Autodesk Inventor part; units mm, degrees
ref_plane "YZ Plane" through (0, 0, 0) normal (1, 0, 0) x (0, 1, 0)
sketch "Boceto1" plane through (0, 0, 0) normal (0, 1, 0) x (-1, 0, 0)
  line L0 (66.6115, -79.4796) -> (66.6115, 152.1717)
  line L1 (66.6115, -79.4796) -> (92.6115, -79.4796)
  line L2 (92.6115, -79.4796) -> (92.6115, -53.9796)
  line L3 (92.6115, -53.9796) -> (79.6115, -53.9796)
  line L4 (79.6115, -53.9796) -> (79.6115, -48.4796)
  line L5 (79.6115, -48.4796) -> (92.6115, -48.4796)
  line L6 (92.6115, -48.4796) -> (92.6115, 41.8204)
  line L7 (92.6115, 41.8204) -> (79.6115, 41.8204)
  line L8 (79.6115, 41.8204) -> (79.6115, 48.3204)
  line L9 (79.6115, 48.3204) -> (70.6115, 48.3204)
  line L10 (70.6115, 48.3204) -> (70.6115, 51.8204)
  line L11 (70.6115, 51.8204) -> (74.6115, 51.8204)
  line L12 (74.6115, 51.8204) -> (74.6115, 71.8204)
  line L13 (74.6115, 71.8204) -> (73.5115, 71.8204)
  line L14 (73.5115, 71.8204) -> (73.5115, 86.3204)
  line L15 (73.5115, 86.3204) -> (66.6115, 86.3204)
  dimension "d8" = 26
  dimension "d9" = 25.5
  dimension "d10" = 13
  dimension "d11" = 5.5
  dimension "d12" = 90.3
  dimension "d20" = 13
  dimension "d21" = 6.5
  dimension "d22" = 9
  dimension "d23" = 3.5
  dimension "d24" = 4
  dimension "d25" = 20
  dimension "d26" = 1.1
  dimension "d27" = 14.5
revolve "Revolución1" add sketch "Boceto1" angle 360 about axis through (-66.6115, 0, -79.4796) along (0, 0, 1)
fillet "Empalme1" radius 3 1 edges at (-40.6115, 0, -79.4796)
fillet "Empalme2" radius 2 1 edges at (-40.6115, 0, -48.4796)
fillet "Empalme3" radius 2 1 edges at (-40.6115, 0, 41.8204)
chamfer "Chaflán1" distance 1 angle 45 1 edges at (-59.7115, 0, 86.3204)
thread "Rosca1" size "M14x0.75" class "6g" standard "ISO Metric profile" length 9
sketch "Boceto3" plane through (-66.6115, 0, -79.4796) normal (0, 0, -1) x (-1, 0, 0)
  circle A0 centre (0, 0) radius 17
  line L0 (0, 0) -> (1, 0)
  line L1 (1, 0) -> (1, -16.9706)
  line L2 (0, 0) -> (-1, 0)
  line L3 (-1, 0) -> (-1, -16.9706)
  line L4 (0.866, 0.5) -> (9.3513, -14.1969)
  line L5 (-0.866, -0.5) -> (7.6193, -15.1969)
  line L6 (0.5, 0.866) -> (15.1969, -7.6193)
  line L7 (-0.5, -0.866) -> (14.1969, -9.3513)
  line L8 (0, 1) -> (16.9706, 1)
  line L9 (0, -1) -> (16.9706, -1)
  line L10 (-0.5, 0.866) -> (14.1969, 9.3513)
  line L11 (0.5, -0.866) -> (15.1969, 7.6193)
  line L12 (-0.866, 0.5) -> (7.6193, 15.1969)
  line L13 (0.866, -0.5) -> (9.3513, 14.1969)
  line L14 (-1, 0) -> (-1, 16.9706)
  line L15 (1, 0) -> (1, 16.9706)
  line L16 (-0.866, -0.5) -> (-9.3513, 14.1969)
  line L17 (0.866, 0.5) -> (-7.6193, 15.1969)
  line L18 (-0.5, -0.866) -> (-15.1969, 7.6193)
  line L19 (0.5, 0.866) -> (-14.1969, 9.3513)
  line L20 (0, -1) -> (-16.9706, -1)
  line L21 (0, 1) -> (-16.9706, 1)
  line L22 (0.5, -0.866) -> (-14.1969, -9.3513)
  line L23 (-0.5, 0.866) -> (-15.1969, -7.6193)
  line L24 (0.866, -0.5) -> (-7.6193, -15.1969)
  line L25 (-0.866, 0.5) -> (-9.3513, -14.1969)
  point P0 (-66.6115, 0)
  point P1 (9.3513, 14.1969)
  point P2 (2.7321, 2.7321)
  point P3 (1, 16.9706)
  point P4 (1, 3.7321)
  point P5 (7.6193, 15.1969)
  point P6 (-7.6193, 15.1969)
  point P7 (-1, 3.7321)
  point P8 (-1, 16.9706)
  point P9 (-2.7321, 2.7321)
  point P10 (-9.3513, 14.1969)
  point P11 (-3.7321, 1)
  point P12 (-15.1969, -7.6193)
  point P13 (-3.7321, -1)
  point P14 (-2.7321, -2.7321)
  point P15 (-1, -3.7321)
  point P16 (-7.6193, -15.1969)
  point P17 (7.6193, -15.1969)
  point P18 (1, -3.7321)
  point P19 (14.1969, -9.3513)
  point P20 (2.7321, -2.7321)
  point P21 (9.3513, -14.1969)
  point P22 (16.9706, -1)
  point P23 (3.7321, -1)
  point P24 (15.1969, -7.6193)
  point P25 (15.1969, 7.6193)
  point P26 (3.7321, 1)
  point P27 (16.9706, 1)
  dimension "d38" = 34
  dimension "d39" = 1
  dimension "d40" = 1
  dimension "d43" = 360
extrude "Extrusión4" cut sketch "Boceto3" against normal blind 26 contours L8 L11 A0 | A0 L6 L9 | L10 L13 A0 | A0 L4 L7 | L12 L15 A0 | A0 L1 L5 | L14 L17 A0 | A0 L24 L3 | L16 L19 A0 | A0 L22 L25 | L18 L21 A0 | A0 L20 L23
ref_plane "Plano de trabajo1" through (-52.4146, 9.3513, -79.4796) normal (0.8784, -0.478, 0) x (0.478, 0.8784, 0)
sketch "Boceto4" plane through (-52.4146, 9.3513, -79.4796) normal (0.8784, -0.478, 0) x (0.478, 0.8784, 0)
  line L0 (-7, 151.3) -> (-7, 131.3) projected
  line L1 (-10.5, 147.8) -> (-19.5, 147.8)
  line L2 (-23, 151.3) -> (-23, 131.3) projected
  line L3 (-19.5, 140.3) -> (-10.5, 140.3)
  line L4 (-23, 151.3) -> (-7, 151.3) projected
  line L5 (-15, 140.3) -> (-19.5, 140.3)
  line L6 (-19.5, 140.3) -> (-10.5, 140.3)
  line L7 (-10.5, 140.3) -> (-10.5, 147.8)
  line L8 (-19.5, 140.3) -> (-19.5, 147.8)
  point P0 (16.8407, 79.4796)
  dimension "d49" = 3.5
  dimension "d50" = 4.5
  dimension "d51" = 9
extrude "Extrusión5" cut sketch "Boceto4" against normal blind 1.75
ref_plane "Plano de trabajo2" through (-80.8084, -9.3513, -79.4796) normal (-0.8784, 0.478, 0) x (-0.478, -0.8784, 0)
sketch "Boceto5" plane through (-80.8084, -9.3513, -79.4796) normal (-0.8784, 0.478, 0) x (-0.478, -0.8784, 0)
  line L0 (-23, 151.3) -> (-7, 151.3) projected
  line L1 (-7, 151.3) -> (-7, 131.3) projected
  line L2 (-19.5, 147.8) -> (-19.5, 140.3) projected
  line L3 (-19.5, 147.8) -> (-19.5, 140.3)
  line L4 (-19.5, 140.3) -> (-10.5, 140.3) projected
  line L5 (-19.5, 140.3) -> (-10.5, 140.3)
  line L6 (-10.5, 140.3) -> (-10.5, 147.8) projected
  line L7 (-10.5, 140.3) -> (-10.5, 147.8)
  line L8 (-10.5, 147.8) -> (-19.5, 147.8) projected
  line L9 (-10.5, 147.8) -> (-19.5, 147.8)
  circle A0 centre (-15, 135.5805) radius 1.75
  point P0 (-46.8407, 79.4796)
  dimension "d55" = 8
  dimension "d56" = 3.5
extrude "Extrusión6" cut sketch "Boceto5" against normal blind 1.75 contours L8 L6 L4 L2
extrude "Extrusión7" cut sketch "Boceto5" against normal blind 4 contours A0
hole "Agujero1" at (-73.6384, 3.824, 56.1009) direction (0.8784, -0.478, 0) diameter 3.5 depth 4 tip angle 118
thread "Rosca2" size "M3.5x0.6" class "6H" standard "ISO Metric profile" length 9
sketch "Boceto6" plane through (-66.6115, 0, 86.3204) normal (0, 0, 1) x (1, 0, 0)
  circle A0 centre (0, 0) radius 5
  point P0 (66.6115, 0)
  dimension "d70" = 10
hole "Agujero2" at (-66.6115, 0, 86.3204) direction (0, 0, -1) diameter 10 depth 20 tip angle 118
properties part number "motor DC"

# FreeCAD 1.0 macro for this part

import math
import FreeCAD as App
import Part
import Sketcher

V = App.Vector
Q = App.Units.Quantity


def edges_at(feature, points):
    """Names of the edges that pass closest to the given points."""
    edges = feature.Shape.Edges
    near = lambda p: min(range(len(edges)), key=lambda i: edges[i].distToShape(Part.Vertex(*p))[0])
    return sorted({f"Edge{near(p) + 1}" for p in points})

doc = App.newDocument("Part")
body = doc.addObject("PartDesign::Body", "Body")

sketch1 = body.newObject("Sketcher::SketchObject", "Sketch")
sketch1.AttachmentSupport = (doc.getObject("XZ_Plane"), [""])
sketch1.MapMode = "FlatFace"
sketch1.addGeometry(Part.LineSegment(V(-66.6115, 86.3204, 0), V(-66.6115, -79.4796, 0)), False)
sketch1.addGeometry(Part.LineSegment(V(-66.6115, -79.4796, 0), V(-92.6115, -79.4796, 0)), False)
sketch1.addGeometry(Part.LineSegment(V(-92.6115, -79.4796, 0), V(-92.6115, -53.9796, 0)), False)
sketch1.addGeometry(Part.LineSegment(V(-92.6115, -53.9796, 0), V(-79.6115, -53.9796, 0)), False)
sketch1.addGeometry(Part.LineSegment(V(-79.6115, -53.9796, 0), V(-79.6115, -48.4796, 0)), False)
sketch1.addGeometry(Part.LineSegment(V(-79.6115, -48.4796, 0), V(-92.6115, -48.4796, 0)), False)
sketch1.addGeometry(Part.LineSegment(V(-92.6115, -48.4796, 0), V(-92.6115, 41.8204, 0)), False)
sketch1.addGeometry(Part.LineSegment(V(-92.6115, 41.8204, 0), V(-79.6115, 41.8204, 0)), False)
sketch1.addGeometry(Part.LineSegment(V(-79.6115, 41.8204, 0), V(-79.6115, 48.3204, 0)), False)
sketch1.addGeometry(Part.LineSegment(V(-79.6115, 48.3204, 0), V(-70.6115, 48.3204, 0)), False)
sketch1.addGeometry(Part.LineSegment(V(-70.6115, 48.3204, 0), V(-70.6115, 51.8204, 0)), False)
sketch1.addGeometry(Part.LineSegment(V(-70.6115, 51.8204, 0), V(-74.6115, 51.8204, 0)), False)
sketch1.addGeometry(Part.LineSegment(V(-74.6115, 51.8204, 0), V(-74.6115, 71.8204, 0)), False)
sketch1.addGeometry(Part.LineSegment(V(-74.6115, 71.8204, 0), V(-73.5115, 71.8204, 0)), False)
sketch1.addGeometry(Part.LineSegment(V(-73.5115, 71.8204, 0), V(-73.5115, 86.3204, 0)), False)
sketch1.addGeometry(Part.LineSegment(V(-73.5115, 86.3204, 0), V(-66.6115, 86.3204, 0)), False)
sketch1.addGeometry(Part.LineSegment(V(-66.6115, -79.4796, 0), V(-66.6115, 86.3204, 0)), True)
sketch1.addConstraint(Sketcher.Constraint("Coincident", 0, 2, 1, 1))
sketch1.addConstraint(Sketcher.Constraint("Coincident", 1, 2, 2, 1))
sketch1.addConstraint(Sketcher.Constraint("Coincident", 2, 2, 3, 1))
sketch1.addConstraint(Sketcher.Constraint("Coincident", 3, 2, 4, 1))
sketch1.addConstraint(Sketcher.Constraint("Coincident", 4, 2, 5, 1))
sketch1.addConstraint(Sketcher.Constraint("Coincident", 5, 2, 6, 1))
sketch1.addConstraint(Sketcher.Constraint("Coincident", 6, 2, 7, 1))
sketch1.addConstraint(Sketcher.Constraint("Coincident", 7, 2, 8, 1))
sketch1.addConstraint(Sketcher.Constraint("Coincident", 8, 2, 9, 1))
sketch1.addConstraint(Sketcher.Constraint("Coincident", 9, 2, 10, 1))
sketch1.addConstraint(Sketcher.Constraint("Coincident", 10, 2, 11, 1))
sketch1.addConstraint(Sketcher.Constraint("Coincident", 11, 2, 12, 1))
sketch1.addConstraint(Sketcher.Constraint("Coincident", 12, 2, 13, 1))
sketch1.addConstraint(Sketcher.Constraint("Coincident", 13, 2, 14, 1))
sketch1.addConstraint(Sketcher.Constraint("Coincident", 14, 2, 15, 1))
sketch1.addConstraint(Sketcher.Constraint("Coincident", 15, 2, 0, 1))
sketch1.addConstraint(Sketcher.Constraint("Vertical", 0))
sketch1.addConstraint(Sketcher.Constraint("Horizontal", 1))
sketch1.addConstraint(Sketcher.Constraint("Vertical", 2))
sketch1.addConstraint(Sketcher.Constraint("Horizontal", 3))
sketch1.addConstraint(Sketcher.Constraint("Vertical", 4))
sketch1.addConstraint(Sketcher.Constraint("Horizontal", 5))
sketch1.addConstraint(Sketcher.Constraint("Vertical", 6))
sketch1.addConstraint(Sketcher.Constraint("Horizontal", 7))
sketch1.addConstraint(Sketcher.Constraint("Vertical", 8))
sketch1.addConstraint(Sketcher.Constraint("Horizontal", 9))
sketch1.addConstraint(Sketcher.Constraint("Vertical", 10))
sketch1.addConstraint(Sketcher.Constraint("Horizontal", 11))
sketch1.addConstraint(Sketcher.Constraint("Vertical", 12))
sketch1.addConstraint(Sketcher.Constraint("Horizontal", 13))
sketch1.addConstraint(Sketcher.Constraint("Vertical", 14))
sketch1.addConstraint(Sketcher.Constraint("Horizontal", 15))
sketch1.addConstraint(Sketcher.Constraint("Vertical", 16))
sketch1.addConstraint(Sketcher.Constraint("Coincident", 16, 1, 0, 2))
sketch1.addConstraint(Sketcher.Constraint("Horizontal", 14, 2, 16, 2))
sketch1.addConstraint(Sketcher.Constraint("Vertical", 2, 2, 5, 2))
sketch1.addConstraint(Sketcher.Constraint("Vertical", 4, 2, 7, 2))
sketch1.addConstraint(Sketcher.Constraint("DistanceX", 1, 2, 1, 1, 26.0))
sketch1.addConstraint(Sketcher.Constraint("DistanceX", 3, 1, 3, 2, 13.0))
sketch1.addConstraint(Sketcher.Constraint("DistanceX", 9, 1, 9, 2, 9.0))
sketch1.addConstraint(Sketcher.Constraint("DistanceX", 11, 2, 11, 1, 4.0))
sketch1.addConstraint(Sketcher.Constraint("DistanceY", 12, 1, 12, 2, 20.0))
sketch1.addConstraint(Sketcher.Constraint("DistanceX", 13, 1, 13, 2, 1.1))
sketch1.addConstraint(Sketcher.Constraint("DistanceY", 2, 1, 2, 2, 25.5))
sketch1.addConstraint(Sketcher.Constraint("DistanceY", 4, 1, 4, 2, 5.5))
sketch1.addConstraint(Sketcher.Constraint("DistanceY", 6, 1, 6, 2, 90.3))
sketch1.addConstraint(Sketcher.Constraint("DistanceY", 8, 1, 8, 2, 6.5))
sketch1.addConstraint(Sketcher.Constraint("DistanceY", 10, 1, 10, 2, 3.5))
sketch1.addConstraint(Sketcher.Constraint("DistanceY", 14, 1, 14, 2, 14.5))
sketch1.addConstraint(Sketcher.Constraint("DistanceX", 0, 2, -1, 1, 66.6115))
sketch1.addConstraint(Sketcher.Constraint("DistanceY", 0, 2, -1, 1, 79.4796))
revolution = body.newObject("PartDesign::Revolution", "Revolution")
revolution.Profile = sketch1
revolution.ReferenceAxis = (sketch1, ["Axis0"])
revolution.Angle = 360
doc.recompute()

fillet = body.newObject("PartDesign::Fillet", "Fillet")
fillet.Base = (revolution, edges_at(revolution, [(-40.611, 0, -79.48)]))
fillet.Radius = 3
doc.recompute()

fillet2 = body.newObject("PartDesign::Fillet", "Fillet001")
fillet2.Base = (fillet, edges_at(fillet, [(-40.611, 0, -48.48)]))
fillet2.Radius = 2
doc.recompute()

fillet3 = body.newObject("PartDesign::Fillet", "Fillet002")
fillet3.Base = (fillet2, edges_at(fillet2, [(-40.611, 0, 41.82)]))
fillet3.Radius = 2
doc.recompute()

chamfer = body.newObject("PartDesign::Chamfer", "Chamfer")
chamfer.Base = (fillet3, edges_at(fillet3, [(-59.712, 0, 86.32)]))
chamfer.Size = 1

sketch2 = body.newObject("Sketcher::SketchObject", "Sketch001")
sketch2.AttachmentSupport = (doc.getObject("XY_Plane"), [""])
sketch2.MapMode = "FlatFace"
sketch2.AttachmentOffset = App.Placement(V(0, 0, -79.4796), App.Rotation())
sketch2.addGeometry(Part.LineSegment(V(-70.343491, 1, 0), V(-83.5821, 1, 0)), False)
sketch2.addGeometry(Part.ArcOfCircle(Part.Circle(V(-66.6115, 0, 0), V(0, 0, 1), 17), math.radians(153.372096), math.radians(176.627721)), False)
sketch2.addGeometry(Part.LineSegment(V(-81.8084, 7.6193, 0), V(-70.343491, 1, 0)), False)
sketch2.addGeometry(Part.ArcOfCircle(Part.Circle(V(-66.6115, 0, 0), V(0, 0, 1), 17), math.radians(-176.627721), math.radians(-153.372096)), False)
sketch2.addGeometry(Part.LineSegment(V(-83.5821, -1, 0), V(-70.343491, -1, 0)), False)
sketch2.addGeometry(Part.LineSegment(V(-70.343491, -1, 0), V(-81.8084, -7.6193, 0)), False)
sketch2.addGeometry(Part.LineSegment(V(-69.343512, 2.732012, 0), V(-80.8084, 9.3513, 0)), False)
sketch2.addGeometry(Part.ArcOfCircle(Part.Circle(V(-66.6115, 0, 0), V(0, 0, 1), 17), math.radians(123.372339), math.radians(146.627661)), False)
sketch2.addGeometry(Part.LineSegment(V(-75.9628, 14.1969, 0), V(-69.343512, 2.732012, 0)), False)
sketch2.addGeometry(Part.ArcOfCircle(Part.Circle(V(-66.6115, 0, 0), V(0, 0, 1), 17), math.radians(-146.627661), math.radians(-123.372339)), False)
sketch2.addGeometry(Part.LineSegment(V(-80.8084, -9.3513, 0), V(-69.343512, -2.732012, 0)), False)
sketch2.addGeometry(Part.LineSegment(V(-69.343512, -2.732012, 0), V(-75.9628, -14.1969, 0)), False)
sketch2.addGeometry(Part.LineSegment(V(-67.6115, 3.731991, 0), V(-74.2308, 15.1969, 0)), False)
sketch2.addGeometry(Part.ArcOfCircle(Part.Circle(V(-66.6115, 0, 0), V(0, 0, 1), 17), math.radians(93.372279), math.radians(116.627904)), False)
sketch2.addGeometry(Part.LineSegment(V(-67.6115, 16.9706, 0), V(-67.6115, 3.731991, 0)), False)
sketch2.addGeometry(Part.ArcOfCircle(Part.Circle(V(-66.6115, 0, 0), V(0, 0, 1), 17), math.radians(-116.627904), math.radians(-93.372279)), False)
sketch2.addGeometry(Part.LineSegment(V(-74.2308, -15.1969, 0), V(-67.6115, -3.731991, 0)), False)
sketch2.addGeometry(Part.LineSegment(V(-67.6115, -3.731991, 0), V(-67.6115, -16.9706, 0)), False)
sketch2.addGeometry(Part.LineSegment(V(-65.6115, 3.731991, 0), V(-65.6115, 16.9706, 0)), False)
sketch2.addGeometry(Part.ArcOfCircle(Part.Circle(V(-66.6115, 0, 0), V(0, 0, 1), 17), math.radians(63.372096), math.radians(86.627721)), False)
sketch2.addGeometry(Part.LineSegment(V(-58.9922, 15.1969, 0), V(-65.6115, 3.731991, 0)), False)
sketch2.addGeometry(Part.ArcOfCircle(Part.Circle(V(-66.6115, 0, 0), V(0, 0, 1), 17), math.radians(-86.627721), math.radians(-63.372096)), False)
sketch2.addGeometry(Part.LineSegment(V(-65.6115, -16.9706, 0), V(-65.6115, -3.731991, 0)), False)
sketch2.addGeometry(Part.LineSegment(V(-65.6115, -3.731991, 0), V(-58.9922, -15.1969, 0)), False)
sketch2.addGeometry(Part.LineSegment(V(-63.879488, 2.732012, 0), V(-57.2602, 14.1969, 0)), False)
sketch2.addGeometry(Part.ArcOfCircle(Part.Circle(V(-66.6115, 0, 0), V(0, 0, 1), 17), math.radians(33.372339), math.radians(56.627661)), False)
sketch2.addGeometry(Part.LineSegment(V(-52.4146, 9.3513, 0), V(-63.879488, 2.732012, 0)), False)
sketch2.addGeometry(Part.ArcOfCircle(Part.Circle(V(-66.6115, 0, 0), V(0, 0, 1), 17), math.radians(-56.627661), math.radians(-33.372339)), False)
sketch2.addGeometry(Part.LineSegment(V(-57.2602, -14.1969, 0), V(-63.879488, -2.732012, 0)), False)
sketch2.addGeometry(Part.LineSegment(V(-63.879488, -2.732012, 0), V(-52.4146, -9.3513, 0)), False)
sketch2.addGeometry(Part.LineSegment(V(-62.879509, 1, 0), V(-51.4146, 7.6193, 0)), False)
sketch2.addGeometry(Part.ArcOfCircle(Part.Circle(V(-66.6115, 0, 0), V(0, 0, 1), 17), math.radians(3.372279), math.radians(26.627904)), False)
sketch2.addGeometry(Part.LineSegment(V(-49.6409, 1, 0), V(-62.879509, 1, 0)), False)
sketch2.addGeometry(Part.ArcOfCircle(Part.Circle(V(-66.6115, 0, 0), V(0, 0, 1), 17), math.radians(-26.627904), math.radians(-3.372279)), False)
sketch2.addGeometry(Part.LineSegment(V(-51.4146, -7.6193, 0), V(-62.879509, -1, 0)), False)
sketch2.addGeometry(Part.LineSegment(V(-62.879509, -1, 0), V(-49.6409, -1, 0)), False)
sketch2.addConstraint(Sketcher.Constraint("Coincident", 0, 2, 1, 2))
sketch2.addConstraint(Sketcher.Constraint("Coincident", 1, 1, 2, 1))
sketch2.addConstraint(Sketcher.Constraint("Coincident", 2, 2, 0, 1))
sketch2.addConstraint(Sketcher.Constraint("Coincident", 3, 1, 4, 1))
sketch2.addConstraint(Sketcher.Constraint("Coincident", 4, 2, 5, 1))
sketch2.addConstraint(Sketcher.Constraint("Coincident", 5, 2, 3, 2))
sketch2.addConstraint(Sketcher.Constraint("Coincident", 6, 2, 7, 2))
sketch2.addConstraint(Sketcher.Constraint("Coincident", 7, 1, 8, 1))
sketch2.addConstraint(Sketcher.Constraint("Coincident", 8, 2, 6, 1))
sketch2.addConstraint(Sketcher.Constraint("Coincident", 9, 1, 10, 1))
sketch2.addConstraint(Sketcher.Constraint("Coincident", 10, 2, 11, 1))
sketch2.addConstraint(Sketcher.Constraint("Coincident", 11, 2, 9, 2))
sketch2.addConstraint(Sketcher.Constraint("Coincident", 12, 2, 13, 2))
sketch2.addConstraint(Sketcher.Constraint("Coincident", 13, 1, 14, 1))
sketch2.addConstraint(Sketcher.Constraint("Coincident", 14, 2, 12, 1))
sketch2.addConstraint(Sketcher.Constraint("Coincident", 15, 1, 16, 1))
sketch2.addConstraint(Sketcher.Constraint("Coincident", 16, 2, 17, 1))
sketch2.addConstraint(Sketcher.Constraint("Coincident", 17, 2, 15, 2))
sketch2.addConstraint(Sketcher.Constraint("Coincident", 18, 2, 19, 2))
sketch2.addConstraint(Sketcher.Constraint("Coincident", 19, 1, 20, 1))
sketch2.addConstraint(Sketcher.Constraint("Coincident", 20, 2, 18, 1))
sketch2.addConstraint(Sketcher.Constraint("Coincident", 21, 1, 22, 1))
sketch2.addConstraint(Sketcher.Constraint("Coincident", 22, 2, 23, 1))
sketch2.addConstraint(Sketcher.Constraint("Coincident", 23, 2, 21, 2))
sketch2.addConstraint(Sketcher.Constraint("Coincident", 24, 2, 25, 2))
sketch2.addConstraint(Sketcher.Constraint("Coincident", 25, 1, 26, 1))
sketch2.addConstraint(Sketcher.Constraint("Coincident", 26, 2, 24, 1))
sketch2.addConstraint(Sketcher.Constraint("Coincident", 27, 1, 28, 1))
sketch2.addConstraint(Sketcher.Constraint("Coincident", 28, 2, 29, 1))
sketch2.addConstraint(Sketcher.Constraint("Coincident", 29, 2, 27, 2))
sketch2.addConstraint(Sketcher.Constraint("Coincident", 30, 2, 31, 2))
sketch2.addConstraint(Sketcher.Constraint("Coincident", 31, 1, 32, 1))
sketch2.addConstraint(Sketcher.Constraint("Coincident", 32, 2, 30, 1))
sketch2.addConstraint(Sketcher.Constraint("Coincident", 33, 1, 34, 1))
sketch2.addConstraint(Sketcher.Constraint("Coincident", 34, 2, 35, 1))
sketch2.addConstraint(Sketcher.Constraint("Coincident", 35, 2, 33, 2))
sketch2.addConstraint(Sketcher.Constraint("Horizontal", 0))
sketch2.addConstraint(Sketcher.Constraint("Horizontal", 4))
sketch2.addConstraint(Sketcher.Constraint("Vertical", 14))
sketch2.addConstraint(Sketcher.Constraint("Vertical", 17))
sketch2.addConstraint(Sketcher.Constraint("Vertical", 18))
sketch2.addConstraint(Sketcher.Constraint("Vertical", 22))
sketch2.addConstraint(Sketcher.Constraint("Horizontal", 32))
sketch2.addConstraint(Sketcher.Constraint("Horizontal", 35))
sketch2.addConstraint(Sketcher.Constraint("Coincident", 3, 3, 1, 3))
sketch2.addConstraint(Sketcher.Constraint("Coincident", 7, 3, 1, 3))
sketch2.addConstraint(Sketcher.Constraint("Coincident", 9, 3, 1, 3))
sketch2.addConstraint(Sketcher.Constraint("Coincident", 13, 3, 1, 3))
sketch2.addConstraint(Sketcher.Constraint("Coincident", 15, 3, 1, 3))
sketch2.addConstraint(Sketcher.Constraint("Coincident", 19, 3, 1, 3))
sketch2.addConstraint(Sketcher.Constraint("Coincident", 21, 3, 1, 3))
sketch2.addConstraint(Sketcher.Constraint("Coincident", 25, 3, 1, 3))
sketch2.addConstraint(Sketcher.Constraint("Coincident", 27, 3, 1, 3))
sketch2.addConstraint(Sketcher.Constraint("Coincident", 31, 3, 1, 3))
sketch2.addConstraint(Sketcher.Constraint("Coincident", 33, 3, 1, 3))
sketch2.addConstraint(Sketcher.Constraint("Equal", 1, 3))
sketch2.addConstraint(Sketcher.Constraint("Equal", 3, 7))
sketch2.addConstraint(Sketcher.Constraint("Equal", 7, 9))
sketch2.addConstraint(Sketcher.Constraint("Equal", 9, 13))
sketch2.addConstraint(Sketcher.Constraint("Equal", 13, 15))
sketch2.addConstraint(Sketcher.Constraint("Equal", 15, 19))
sketch2.addConstraint(Sketcher.Constraint("Equal", 19, 21))
sketch2.addConstraint(Sketcher.Constraint("Equal", 21, 25))
sketch2.addConstraint(Sketcher.Constraint("Equal", 25, 27))
sketch2.addConstraint(Sketcher.Constraint("Equal", 27, 31))
sketch2.addConstraint(Sketcher.Constraint("Equal", 31, 33))
sketch2.addConstraint(Sketcher.Constraint("Symmetric", 0, 2, 3, 1, -1))
sketch2.addConstraint(Sketcher.Constraint("Symmetric", 8, 2, 10, 2, -1))
sketch2.addConstraint(Sketcher.Constraint("Symmetric", 14, 2, 16, 2, -1))
sketch2.addConstraint(Sketcher.Constraint("Symmetric", 20, 2, 22, 2, -1))
sketch2.addConstraint(Sketcher.Constraint("Symmetric", 26, 2, 28, 2, -1))
sketch2.addConstraint(Sketcher.Constraint("Symmetric", 32, 2, 34, 2, -1))
sketch2.addConstraint(Sketcher.Constraint("Parallel", 2, 6))
sketch2.addConstraint(Sketcher.Constraint("Perpendicular", 5, 8))
sketch2.addConstraint(Sketcher.Constraint("Perpendicular", 8, 10))
sketch2.addConstraint(Sketcher.Constraint("Perpendicular", 6, 11))
sketch2.addConstraint(Sketcher.Constraint("Perpendicular", 10, 12))
sketch2.addConstraint(Sketcher.Constraint("Parallel", 11, 16))
sketch2.addConstraint(Sketcher.Constraint("Parallel", 16, 20))
sketch2.addConstraint(Sketcher.Constraint("Parallel", 12, 23))
sketch2.addConstraint(Sketcher.Constraint("Parallel", 20, 24))
sketch2.addConstraint(Sketcher.Constraint("Perpendicular", 23, 26))
sketch2.addConstraint(Sketcher.Constraint("Perpendicular", 26, 28))
sketch2.addConstraint(Sketcher.Constraint("Perpendicular", 24, 29))
sketch2.addConstraint(Sketcher.Constraint("Perpendicular", 28, 30))
sketch2.addConstraint(Sketcher.Constraint("Parallel", 29, 34))
sketch2.addConstraint(Sketcher.Constraint("Horizontal", 13, 1, 18, 2))
sketch2.addConstraint(Sketcher.Constraint("Horizontal", 12, 2, 19, 1))
sketch2.addConstraint(Sketcher.Constraint("Horizontal", 14, 2, 20, 2))
sketch2.addConstraint(Sketcher.Constraint("Horizontal", 7, 1, 24, 2))
sketch2.addConstraint(Sketcher.Constraint("Horizontal", 6, 2, 25, 1))
sketch2.addConstraint(Sketcher.Constraint("Horizontal", 1, 1, 30, 2))
sketch2.addConstraint(Sketcher.Constraint("Horizontal", 2, 2, 31, 1))
sketch2.addConstraint(Sketcher.Constraint("Horizontal", 5, 2, 33, 1))
sketch2.addConstraint(Sketcher.Constraint("Equal", 35, 14))
sketch2.addConstraint(Sketcher.Constraint("Equal", 5, 6))
sketch2.addConstraint(Sketcher.Constraint("Equal", 6, 8))
sketch2.addConstraint(Sketcher.Constraint("Equal", 11, 12))
sketch2.addConstraint(Sketcher.Constraint("Radius", 1, 17.0))
sketch2.addConstraint(Sketcher.Constraint("DistanceY", -1, 1, 0, 2, 1.0))
sketch2.addConstraint(Sketcher.Constraint("DistanceX", 1, 1, 6, 2, 1.0))
sketch2.addConstraint(Sketcher.Constraint("Angle", 2, Q("-30 deg")))
sketch2.addConstraint(Sketcher.Constraint("DistanceX", 0, 2, -1, 1, 83.582))
pocket1 = body.newObject("PartDesign::Pocket", "Pocket")
pocket1.Profile = sketch2
pocket1.Length = 26
pocket1.Reversed = True

sketch3 = body.newObject("Sketcher::SketchObject", "Sketch002")
sketch3.Placement = App.Placement(V(-52.4146, 9.3513, -79.4796), App.Rotation(V(0.477983137, 0.878369012, 0), V(0, 0, 1), V(0.878369012, -0.477983137, 0), "ZXY"))
sketch3.addGeometry(Part.LineSegment(V(-10.5, 140.3, 0), V(-10.5, 147.8, 0)), False)
sketch3.addGeometry(Part.LineSegment(V(-10.5, 147.8, 0), V(-19.5, 147.8, 0)), False)
sketch3.addGeometry(Part.LineSegment(V(-19.5, 147.8, 0), V(-19.5, 140.3, 0)), False)
sketch3.addGeometry(Part.LineSegment(V(-19.5, 140.3, 0), V(-10.5, 140.3, 0)), False)
sketch3.addConstraint(Sketcher.Constraint("Coincident", 0, 2, 1, 1))
sketch3.addConstraint(Sketcher.Constraint("Coincident", 1, 2, 2, 1))
sketch3.addConstraint(Sketcher.Constraint("Coincident", 2, 2, 3, 1))
sketch3.addConstraint(Sketcher.Constraint("Coincident", 3, 2, 0, 1))
sketch3.addConstraint(Sketcher.Constraint("Vertical", 0))
sketch3.addConstraint(Sketcher.Constraint("Horizontal", 1))
sketch3.addConstraint(Sketcher.Constraint("Vertical", 2))
sketch3.addConstraint(Sketcher.Constraint("Horizontal", 3))
sketch3.addConstraint(Sketcher.Constraint("DistanceX", 1, 2, 1, 1, 9.0))
sketch3.addConstraint(Sketcher.Constraint("DistanceY", 0, 1, 0, 2, 7.5))
sketch3.addConstraint(Sketcher.Constraint("DistanceX", 0, 2, -1, 1, 10.5))
sketch3.addConstraint(Sketcher.Constraint("DistanceY", -1, 1, 0, 2, 147.8))
pocket2 = body.newObject("PartDesign::Pocket", "Pocket001")
pocket2.Profile = sketch3
pocket2.Length = 1.75

sketch4 = body.newObject("Sketcher::SketchObject", "Sketch003")
sketch4.Placement = App.Placement(V(-80.8084, -9.3513, -79.4796), App.Rotation(V(-0.477983137, -0.878369012, 0), V(0, 0, 1), V(-0.878369012, 0.477983137, 0), "ZXY"))
sketch4.addGeometry(Part.LineSegment(V(-10.5, 147.8, 0), V(-19.5, 147.8, 0)), False)
sketch4.addGeometry(Part.LineSegment(V(-19.5, 147.8, 0), V(-19.5, 140.3, 0)), False)
sketch4.addGeometry(Part.LineSegment(V(-19.5, 140.3, 0), V(-10.5, 140.3, 0)), False)
sketch4.addGeometry(Part.LineSegment(V(-10.5, 140.3, 0), V(-10.5, 147.8, 0)), False)
sketch4.addConstraint(Sketcher.Constraint("Coincident", 0, 2, 1, 1))
sketch4.addConstraint(Sketcher.Constraint("Coincident", 1, 2, 2, 1))
sketch4.addConstraint(Sketcher.Constraint("Coincident", 2, 2, 3, 1))
sketch4.addConstraint(Sketcher.Constraint("Coincident", 3, 2, 0, 1))
sketch4.addConstraint(Sketcher.Constraint("Horizontal", 0))
sketch4.addConstraint(Sketcher.Constraint("Vertical", 1))
sketch4.addConstraint(Sketcher.Constraint("Horizontal", 2))
sketch4.addConstraint(Sketcher.Constraint("Vertical", 3))
sketch4.addConstraint(Sketcher.Constraint("DistanceX", 0, 2, 0, 1, 9.0))
sketch4.addConstraint(Sketcher.Constraint("DistanceY", 1, 2, 1, 1, 7.5))
sketch4.addConstraint(Sketcher.Constraint("DistanceX", 0, 2, -1, 1, 19.5))
sketch4.addConstraint(Sketcher.Constraint("DistanceY", -1, 1, 0, 2, 147.8))
pocket3 = body.newObject("PartDesign::Pocket", "Pocket002")
pocket3.Profile = sketch4
pocket3.Length = 1.75

sketch5 = body.newObject("Sketcher::SketchObject", "Sketch004")
sketch5.Placement = App.Placement(V(-80.8084, -9.3513, -79.4796), App.Rotation(V(-0.477983137, -0.878369012, 0), V(0, 0, 1), V(-0.878369012, 0.477983137, 0), "ZXY"))
sketch5.addGeometry(Part.Circle(V(-15, 135.5805, 0), V(0, 0, 1), 1.75), False)
sketch5.addConstraint(Sketcher.Constraint("Diameter", 0, 3.5))
sketch5.addConstraint(Sketcher.Constraint("DistanceX", 0, 3, -1, 1, 15.0))
sketch5.addConstraint(Sketcher.Constraint("DistanceY", -1, 1, 0, 3, 135.5805))
pocket4 = body.newObject("PartDesign::Pocket", "Pocket003")
pocket4.Profile = sketch5
pocket4.Length = 4

sketch6 = body.newObject("Sketcher::SketchObject", "Sketch005")
sketch6.Placement = App.Placement(V(-58.41988, 31.790418, 0), App.Rotation(V(-0.477983137, -0.878369012, 0), V(0, 0, 1), V(-0.878369012, 0.477983137, 0), "ZXY"))
sketch6.addGeometry(Part.Circle(V(31.83903, 56.1009, 0), V(0, 0, 1), 1.75), False)
sketch6.addConstraint(Sketcher.Constraint("Diameter", 0, 3.5))
sketch6.addConstraint(Sketcher.Constraint("DistanceX", -1, 1, 0, 3, 31.839))
sketch6.addConstraint(Sketcher.Constraint("DistanceY", -1, 1, 0, 3, 56.101))
doc.recompute()
hole = body.newObject("PartDesign::Hole", "Hole")
hole.Profile = sketch6
hole.ThreadType = "None"
hole.Diameter = 3.5
hole.DepthType = "Dimension"
hole.Depth = 4
hole.DrillPoint = "Angled"
hole.DrillPointAngle = 118

sketch7 = body.newObject("Sketcher::SketchObject", "Sketch006")
sketch7.AttachmentSupport = (doc.getObject("XY_Plane"), [""])
sketch7.MapMode = "FlatFace"
sketch7.AttachmentOffset = App.Placement(V(0, 0, 86.3204), App.Rotation())
sketch7.addGeometry(Part.Circle(V(-66.6115, 0, 0), V(0, 0, 1), 5), False)
sketch7.addConstraint(Sketcher.Constraint("PointOnObject", 0, 3, -1))
sketch7.addConstraint(Sketcher.Constraint("Diameter", 0, 10.0))
sketch7.addConstraint(Sketcher.Constraint("DistanceX", 0, 3, -1, 1, 66.6115))
doc.recompute()
hole2 = body.newObject("PartDesign::Hole", "Hole001")
hole2.Profile = sketch7
hole2.ThreadType = "None"
hole2.Diameter = 10
hole2.DepthType = "Dimension"
hole2.Depth = 20
hole2.DrillPoint = "Angled"
hole2.DrillPointAngle = 118

doc.recompute()
